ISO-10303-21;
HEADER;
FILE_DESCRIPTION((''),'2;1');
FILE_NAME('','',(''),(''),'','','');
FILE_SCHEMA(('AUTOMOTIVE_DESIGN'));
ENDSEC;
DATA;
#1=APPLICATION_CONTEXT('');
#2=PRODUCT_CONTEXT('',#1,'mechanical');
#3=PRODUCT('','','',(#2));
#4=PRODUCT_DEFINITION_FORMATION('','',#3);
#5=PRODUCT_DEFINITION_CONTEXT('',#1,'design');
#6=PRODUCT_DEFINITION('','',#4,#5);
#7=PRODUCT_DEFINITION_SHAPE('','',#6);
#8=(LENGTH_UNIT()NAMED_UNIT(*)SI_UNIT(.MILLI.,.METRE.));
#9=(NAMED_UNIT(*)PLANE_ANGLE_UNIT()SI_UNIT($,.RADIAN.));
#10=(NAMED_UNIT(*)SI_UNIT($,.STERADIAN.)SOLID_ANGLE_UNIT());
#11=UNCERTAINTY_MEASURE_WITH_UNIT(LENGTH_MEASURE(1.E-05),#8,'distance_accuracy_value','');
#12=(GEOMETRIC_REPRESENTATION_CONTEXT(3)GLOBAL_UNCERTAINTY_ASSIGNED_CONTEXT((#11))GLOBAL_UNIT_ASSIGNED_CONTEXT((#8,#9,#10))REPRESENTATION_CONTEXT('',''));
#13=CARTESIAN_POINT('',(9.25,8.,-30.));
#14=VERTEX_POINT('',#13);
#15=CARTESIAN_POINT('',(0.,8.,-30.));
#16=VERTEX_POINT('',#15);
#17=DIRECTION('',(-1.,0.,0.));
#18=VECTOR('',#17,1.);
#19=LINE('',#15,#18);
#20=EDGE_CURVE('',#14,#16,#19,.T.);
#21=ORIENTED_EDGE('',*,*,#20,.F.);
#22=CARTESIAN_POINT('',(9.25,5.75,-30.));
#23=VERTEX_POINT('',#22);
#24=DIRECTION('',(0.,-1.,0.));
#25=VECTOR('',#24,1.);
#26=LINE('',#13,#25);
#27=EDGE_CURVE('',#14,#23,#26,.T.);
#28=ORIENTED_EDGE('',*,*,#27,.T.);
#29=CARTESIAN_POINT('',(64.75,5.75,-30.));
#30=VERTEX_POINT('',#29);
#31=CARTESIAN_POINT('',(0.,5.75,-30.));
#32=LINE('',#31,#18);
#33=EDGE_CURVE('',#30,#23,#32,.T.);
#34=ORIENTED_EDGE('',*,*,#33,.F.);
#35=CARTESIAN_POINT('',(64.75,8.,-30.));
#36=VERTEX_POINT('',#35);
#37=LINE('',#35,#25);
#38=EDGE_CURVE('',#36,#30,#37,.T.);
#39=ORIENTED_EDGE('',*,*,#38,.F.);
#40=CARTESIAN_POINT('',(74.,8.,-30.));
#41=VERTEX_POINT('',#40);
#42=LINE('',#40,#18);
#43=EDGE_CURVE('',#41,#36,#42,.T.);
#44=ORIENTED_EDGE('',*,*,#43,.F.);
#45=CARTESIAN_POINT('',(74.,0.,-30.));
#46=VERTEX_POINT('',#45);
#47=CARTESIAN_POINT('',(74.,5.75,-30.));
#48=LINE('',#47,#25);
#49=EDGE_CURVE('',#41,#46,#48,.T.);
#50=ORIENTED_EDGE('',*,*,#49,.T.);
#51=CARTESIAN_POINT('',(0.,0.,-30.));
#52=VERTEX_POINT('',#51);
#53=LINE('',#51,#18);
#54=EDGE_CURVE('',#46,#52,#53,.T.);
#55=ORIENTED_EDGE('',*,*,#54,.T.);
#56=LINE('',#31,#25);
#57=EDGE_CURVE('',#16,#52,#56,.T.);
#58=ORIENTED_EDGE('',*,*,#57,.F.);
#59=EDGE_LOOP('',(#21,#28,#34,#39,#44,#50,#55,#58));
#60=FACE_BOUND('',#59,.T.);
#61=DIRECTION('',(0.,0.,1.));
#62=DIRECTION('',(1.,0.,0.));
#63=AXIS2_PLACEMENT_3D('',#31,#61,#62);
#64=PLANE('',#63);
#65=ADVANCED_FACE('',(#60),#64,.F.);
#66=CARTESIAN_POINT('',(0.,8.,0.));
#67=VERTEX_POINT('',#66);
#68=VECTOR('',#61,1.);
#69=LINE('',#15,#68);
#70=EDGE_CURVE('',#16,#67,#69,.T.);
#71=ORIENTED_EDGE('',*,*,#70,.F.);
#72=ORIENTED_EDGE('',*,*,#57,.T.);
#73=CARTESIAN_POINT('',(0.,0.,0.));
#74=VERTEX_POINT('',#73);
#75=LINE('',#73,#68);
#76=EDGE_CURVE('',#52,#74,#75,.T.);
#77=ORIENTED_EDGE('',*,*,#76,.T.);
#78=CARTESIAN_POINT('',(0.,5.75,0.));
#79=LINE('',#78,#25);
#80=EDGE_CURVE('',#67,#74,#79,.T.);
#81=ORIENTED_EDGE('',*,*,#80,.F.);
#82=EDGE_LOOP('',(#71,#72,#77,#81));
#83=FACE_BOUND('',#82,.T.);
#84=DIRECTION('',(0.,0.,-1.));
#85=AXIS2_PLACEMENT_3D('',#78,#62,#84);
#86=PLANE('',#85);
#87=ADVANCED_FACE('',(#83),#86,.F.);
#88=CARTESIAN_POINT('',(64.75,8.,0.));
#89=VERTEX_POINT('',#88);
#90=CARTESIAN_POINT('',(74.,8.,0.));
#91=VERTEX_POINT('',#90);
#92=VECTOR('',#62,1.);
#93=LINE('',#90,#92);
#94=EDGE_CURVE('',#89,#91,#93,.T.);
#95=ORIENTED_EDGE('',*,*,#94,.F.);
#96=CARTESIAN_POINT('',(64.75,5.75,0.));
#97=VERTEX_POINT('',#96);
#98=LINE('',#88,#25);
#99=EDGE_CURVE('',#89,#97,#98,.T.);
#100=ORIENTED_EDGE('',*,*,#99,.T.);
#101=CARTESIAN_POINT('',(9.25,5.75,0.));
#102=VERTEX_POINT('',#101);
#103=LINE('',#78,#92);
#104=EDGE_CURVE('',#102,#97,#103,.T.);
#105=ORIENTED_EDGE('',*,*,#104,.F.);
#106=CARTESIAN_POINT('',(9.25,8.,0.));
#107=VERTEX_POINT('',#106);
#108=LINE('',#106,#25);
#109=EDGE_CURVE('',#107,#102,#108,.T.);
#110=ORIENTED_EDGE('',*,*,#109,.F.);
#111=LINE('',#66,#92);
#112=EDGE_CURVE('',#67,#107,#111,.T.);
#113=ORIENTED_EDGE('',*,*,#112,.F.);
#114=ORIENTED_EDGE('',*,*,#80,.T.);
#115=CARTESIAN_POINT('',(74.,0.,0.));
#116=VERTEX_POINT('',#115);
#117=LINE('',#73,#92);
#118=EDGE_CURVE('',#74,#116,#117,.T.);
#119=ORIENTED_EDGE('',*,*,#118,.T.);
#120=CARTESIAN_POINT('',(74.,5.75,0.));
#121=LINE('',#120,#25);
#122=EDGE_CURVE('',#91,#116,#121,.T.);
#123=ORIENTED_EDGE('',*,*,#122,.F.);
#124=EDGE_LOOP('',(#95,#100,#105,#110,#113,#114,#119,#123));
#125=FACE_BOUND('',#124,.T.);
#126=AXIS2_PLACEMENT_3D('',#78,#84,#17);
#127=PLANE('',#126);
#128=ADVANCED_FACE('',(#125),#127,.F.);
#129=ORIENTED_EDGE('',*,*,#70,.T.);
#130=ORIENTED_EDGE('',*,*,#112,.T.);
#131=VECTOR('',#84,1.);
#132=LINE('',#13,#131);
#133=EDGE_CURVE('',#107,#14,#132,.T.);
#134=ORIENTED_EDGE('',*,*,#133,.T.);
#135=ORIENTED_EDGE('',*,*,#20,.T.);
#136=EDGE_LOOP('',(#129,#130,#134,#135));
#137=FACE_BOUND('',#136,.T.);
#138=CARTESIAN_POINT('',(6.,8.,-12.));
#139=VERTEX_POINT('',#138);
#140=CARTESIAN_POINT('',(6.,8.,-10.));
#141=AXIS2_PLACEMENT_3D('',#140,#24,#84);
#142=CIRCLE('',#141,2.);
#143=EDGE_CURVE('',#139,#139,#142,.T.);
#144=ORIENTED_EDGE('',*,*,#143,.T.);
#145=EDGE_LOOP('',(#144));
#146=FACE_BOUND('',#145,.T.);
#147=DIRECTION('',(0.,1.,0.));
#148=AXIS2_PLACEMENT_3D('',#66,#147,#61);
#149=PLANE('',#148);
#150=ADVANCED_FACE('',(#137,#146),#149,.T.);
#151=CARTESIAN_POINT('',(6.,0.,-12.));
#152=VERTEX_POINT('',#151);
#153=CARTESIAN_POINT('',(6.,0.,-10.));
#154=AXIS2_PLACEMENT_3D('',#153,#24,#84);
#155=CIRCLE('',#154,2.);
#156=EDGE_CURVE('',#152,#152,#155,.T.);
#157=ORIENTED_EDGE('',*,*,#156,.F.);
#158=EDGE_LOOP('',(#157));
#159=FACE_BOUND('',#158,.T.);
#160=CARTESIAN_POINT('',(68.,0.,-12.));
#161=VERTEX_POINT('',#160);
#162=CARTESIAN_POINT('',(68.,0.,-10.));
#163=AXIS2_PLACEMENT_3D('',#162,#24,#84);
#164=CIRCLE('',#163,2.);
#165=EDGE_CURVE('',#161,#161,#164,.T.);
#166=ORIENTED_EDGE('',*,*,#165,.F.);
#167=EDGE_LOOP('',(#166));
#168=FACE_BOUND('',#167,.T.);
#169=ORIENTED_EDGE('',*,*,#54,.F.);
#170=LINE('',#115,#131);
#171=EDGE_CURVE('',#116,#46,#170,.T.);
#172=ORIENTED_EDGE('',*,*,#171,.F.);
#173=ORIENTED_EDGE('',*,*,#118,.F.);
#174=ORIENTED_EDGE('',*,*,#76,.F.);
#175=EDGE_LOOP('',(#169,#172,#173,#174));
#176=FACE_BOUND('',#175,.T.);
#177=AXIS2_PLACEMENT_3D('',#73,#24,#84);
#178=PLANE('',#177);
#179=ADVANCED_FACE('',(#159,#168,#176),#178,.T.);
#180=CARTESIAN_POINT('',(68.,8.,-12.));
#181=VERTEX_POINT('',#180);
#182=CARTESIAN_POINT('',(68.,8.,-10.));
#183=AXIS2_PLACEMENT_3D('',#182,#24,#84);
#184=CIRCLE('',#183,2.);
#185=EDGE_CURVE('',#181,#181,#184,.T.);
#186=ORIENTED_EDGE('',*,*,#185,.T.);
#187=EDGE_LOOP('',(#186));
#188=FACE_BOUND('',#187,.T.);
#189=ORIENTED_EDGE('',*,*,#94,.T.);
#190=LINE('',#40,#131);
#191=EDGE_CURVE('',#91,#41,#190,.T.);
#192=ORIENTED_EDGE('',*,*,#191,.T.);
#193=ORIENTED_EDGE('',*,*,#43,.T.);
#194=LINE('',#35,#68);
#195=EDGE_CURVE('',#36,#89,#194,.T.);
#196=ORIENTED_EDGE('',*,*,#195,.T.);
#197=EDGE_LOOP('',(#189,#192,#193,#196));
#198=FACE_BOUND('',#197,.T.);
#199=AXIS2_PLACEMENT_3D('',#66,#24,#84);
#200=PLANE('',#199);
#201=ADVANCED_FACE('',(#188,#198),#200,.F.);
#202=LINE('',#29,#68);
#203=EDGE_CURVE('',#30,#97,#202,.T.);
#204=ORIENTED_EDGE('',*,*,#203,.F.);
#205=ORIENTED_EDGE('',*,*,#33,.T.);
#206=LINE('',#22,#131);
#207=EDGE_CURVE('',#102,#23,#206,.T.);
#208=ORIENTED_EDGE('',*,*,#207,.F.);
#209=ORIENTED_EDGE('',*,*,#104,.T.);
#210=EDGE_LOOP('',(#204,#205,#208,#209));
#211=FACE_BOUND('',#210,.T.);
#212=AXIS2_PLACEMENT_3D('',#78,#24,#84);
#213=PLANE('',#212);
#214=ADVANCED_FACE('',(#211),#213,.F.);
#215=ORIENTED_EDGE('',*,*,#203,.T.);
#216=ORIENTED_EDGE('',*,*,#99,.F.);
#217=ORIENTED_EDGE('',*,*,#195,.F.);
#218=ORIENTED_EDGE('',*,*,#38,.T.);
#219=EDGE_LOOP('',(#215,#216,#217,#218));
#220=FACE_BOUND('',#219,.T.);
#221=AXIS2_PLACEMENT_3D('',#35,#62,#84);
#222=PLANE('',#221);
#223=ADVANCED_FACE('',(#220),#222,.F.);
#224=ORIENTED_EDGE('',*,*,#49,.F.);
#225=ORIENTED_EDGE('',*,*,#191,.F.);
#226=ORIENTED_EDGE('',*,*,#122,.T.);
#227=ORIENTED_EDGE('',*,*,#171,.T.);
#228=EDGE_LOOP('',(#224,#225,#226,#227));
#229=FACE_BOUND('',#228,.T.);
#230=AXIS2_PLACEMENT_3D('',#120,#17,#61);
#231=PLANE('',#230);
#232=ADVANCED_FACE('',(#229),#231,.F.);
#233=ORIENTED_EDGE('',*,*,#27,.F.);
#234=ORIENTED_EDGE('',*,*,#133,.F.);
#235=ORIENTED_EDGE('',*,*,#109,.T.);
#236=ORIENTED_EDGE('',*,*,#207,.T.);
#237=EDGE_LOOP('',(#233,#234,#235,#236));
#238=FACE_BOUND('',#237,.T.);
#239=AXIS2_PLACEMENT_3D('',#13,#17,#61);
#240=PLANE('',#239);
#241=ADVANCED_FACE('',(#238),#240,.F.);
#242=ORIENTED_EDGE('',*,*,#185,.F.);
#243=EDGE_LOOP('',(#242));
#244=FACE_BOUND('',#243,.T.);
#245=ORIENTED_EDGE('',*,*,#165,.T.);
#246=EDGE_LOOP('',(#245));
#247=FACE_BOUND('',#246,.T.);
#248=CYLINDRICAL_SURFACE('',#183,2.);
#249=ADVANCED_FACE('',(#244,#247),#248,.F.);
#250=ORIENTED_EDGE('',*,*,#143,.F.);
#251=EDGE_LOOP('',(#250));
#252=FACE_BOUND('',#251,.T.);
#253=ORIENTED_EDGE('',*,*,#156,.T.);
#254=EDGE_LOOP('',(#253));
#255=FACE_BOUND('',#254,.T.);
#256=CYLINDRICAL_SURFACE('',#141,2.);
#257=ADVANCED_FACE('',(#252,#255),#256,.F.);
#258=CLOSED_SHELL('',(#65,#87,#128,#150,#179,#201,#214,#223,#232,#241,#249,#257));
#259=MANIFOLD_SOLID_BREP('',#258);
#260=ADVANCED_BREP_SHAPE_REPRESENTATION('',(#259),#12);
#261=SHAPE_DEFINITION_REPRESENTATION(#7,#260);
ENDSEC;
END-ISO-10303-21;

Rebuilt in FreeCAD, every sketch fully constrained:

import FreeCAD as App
import Part
import Sketcher


def add_polygon(sketch, points):
    """Adds a closed chain of lines whose ends are joined by coincident constraints."""
    first, n = sketch.GeometryCount, len(points)
    for a, b in zip(points, points[1:] + points[:1]):
        sketch.addGeometry(Part.LineSegment(App.Vector(*a, 0), App.Vector(*b, 0)), False)
    for i in range(n):
        sketch.addConstraint(Sketcher.Constraint("Coincident", first + i, 2, first + (i + 1) % n, 1))

doc = App.newDocument("Part")
body = doc.addObject("PartDesign::Body", "Body")

# Sketch on XZ plane
sketch1 = doc.addObject("Sketcher::SketchObject", "Sketch")
body.addObject(sketch1)
sketch1.AttachmentSupport = (doc.XZ_Plane, [""])
sketch1.MapMode = "FlatFace"
add_polygon(sketch1, [(0, -30), (0, 0), (74, 0), (74, -30)])  # lines 0-3
sketch1.addConstraint([
    Sketcher.Constraint("Vertical", 0),
    Sketcher.Constraint("Horizontal", 1),
    Sketcher.Constraint("Vertical", 2),
    Sketcher.Constraint("Horizontal", 3),
    Sketcher.Constraint("Coincident", 0, 2, -1, 1),
    Sketcher.Constraint("DistanceX", 1, 1, 1, 2, 74.0),
    Sketcher.Constraint("DistanceY", 0, 1, 0, 2, 30.0),
])
pad1 = doc.addObject("PartDesign::Pad", "Pad")
body.addObject(pad1)
pad1.Profile = sketch1
pad1.Length = 5.75
pad1.Reversed = True

# Sketch on XZ plane
sketch2 = doc.addObject("Sketcher::SketchObject", "Sketch001")
body.addObject(sketch2)
sketch2.AttachmentSupport = (doc.XZ_Plane, [""])
sketch2.MapMode = "FlatFace"
sketch2.AttachmentOffset = App.Placement(App.Vector(0, 0, -5.75), App.Rotation())
add_polygon(sketch2, [(0, -30), (0, 0), (9, 0), (9, -30)])  # lines 0-3
add_polygon(sketch2, [(65, -30), (65, 0), (74, 0), (74, -30)])  # lines 4-7
sketch2.addConstraint([
    Sketcher.Constraint("Vertical", 0),
    Sketcher.Constraint("Horizontal", 1),
    Sketcher.Constraint("Vertical", 2),
    Sketcher.Constraint("Horizontal", 3),
    Sketcher.Constraint("Vertical", 4),
    Sketcher.Constraint("Horizontal", 5),
    Sketcher.Constraint("Vertical", 6),
    Sketcher.Constraint("Horizontal", 7),
    Sketcher.Constraint("Coincident", 0, 2, -1, 1),
    Sketcher.Constraint("PointOnObject", 4, 2, -1),
    Sketcher.Constraint("Horizontal", 3, 2, 6, 2),
    Sketcher.Constraint("Equal", 3, 5),
    Sketcher.Constraint("DistanceY", 0, 1, 0, 2, 30.0),
    Sketcher.Constraint("DistanceX", -1, 1, 5, 2, 74.0),
    Sketcher.Constraint("DistanceX", 1, 1, 1, 2, 9.25),
])
pad2 = doc.addObject("PartDesign::Pad", "Pad001")
body.addObject(pad2)
pad2.Profile = sketch2
pad2.Length = 2.25
pad2.Reversed = True

# Sketch on XZ plane
sketch3 = doc.addObject("Sketcher::SketchObject", "Sketch002")
body.addObject(sketch3)
sketch3.AttachmentSupport = (doc.XZ_Plane, [""])
sketch3.MapMode = "FlatFace"
sketch3.addGeometry([
    Part.Circle(App.Vector(68, -10, 0), App.Vector(0, 0, 1), 2),
    Part.Circle(App.Vector(6, -10, 0), App.Vector(0, 0, 1), 2),
], False)
sketch3.addConstraint([
    Sketcher.Constraint("Equal", 0, 1),
    Sketcher.Constraint("Horizontal", 0, 3, 1, 3),
    Sketcher.Constraint("Diameter", 0, 4.0),
    Sketcher.Constraint("DistanceX", -1, 1, 0, 3, 68.0),
    Sketcher.Constraint("DistanceY", 0, 3, -1, 1, 10.0),
    Sketcher.Constraint("DistanceX", -1, 1, 1, 3, 6.0),
])
pocket1 = doc.addObject("PartDesign::Pocket", "Pocket")
body.addObject(pocket1)
pocket1.Profile = sketch3
pocket1.Type = "ThroughAll"

doc.recompute()
